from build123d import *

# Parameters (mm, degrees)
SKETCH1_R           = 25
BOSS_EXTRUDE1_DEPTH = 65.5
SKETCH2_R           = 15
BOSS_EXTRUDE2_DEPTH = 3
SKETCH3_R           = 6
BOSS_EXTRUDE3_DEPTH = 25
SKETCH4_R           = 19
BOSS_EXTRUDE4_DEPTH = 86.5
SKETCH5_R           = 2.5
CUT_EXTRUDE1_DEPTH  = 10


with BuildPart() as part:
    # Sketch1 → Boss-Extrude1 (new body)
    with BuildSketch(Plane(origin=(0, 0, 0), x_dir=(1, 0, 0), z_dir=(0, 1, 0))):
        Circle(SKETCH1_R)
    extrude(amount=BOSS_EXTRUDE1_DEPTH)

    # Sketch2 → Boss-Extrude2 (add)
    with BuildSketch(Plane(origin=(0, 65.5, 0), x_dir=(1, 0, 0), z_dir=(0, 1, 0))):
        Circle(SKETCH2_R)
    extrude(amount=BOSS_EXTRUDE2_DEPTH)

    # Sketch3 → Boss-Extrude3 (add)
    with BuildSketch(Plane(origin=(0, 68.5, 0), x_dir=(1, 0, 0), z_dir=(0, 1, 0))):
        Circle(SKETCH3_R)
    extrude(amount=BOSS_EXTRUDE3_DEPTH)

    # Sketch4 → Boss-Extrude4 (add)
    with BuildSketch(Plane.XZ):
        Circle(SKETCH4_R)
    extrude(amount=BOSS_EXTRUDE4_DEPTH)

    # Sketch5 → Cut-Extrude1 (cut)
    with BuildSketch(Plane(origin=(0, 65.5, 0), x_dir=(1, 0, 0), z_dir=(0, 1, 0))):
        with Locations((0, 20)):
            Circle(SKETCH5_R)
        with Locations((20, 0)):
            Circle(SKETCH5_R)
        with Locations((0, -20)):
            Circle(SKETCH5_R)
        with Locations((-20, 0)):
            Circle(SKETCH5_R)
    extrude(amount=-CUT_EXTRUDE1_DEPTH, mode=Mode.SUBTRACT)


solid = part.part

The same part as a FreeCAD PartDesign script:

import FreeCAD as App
import Part
import Sketcher
from FreeCAD import Vector
Q = App.Units.Quantity

doc = App.newDocument("Part")
body = doc.addObject("PartDesign::Body", "Body")

# Sketch on XZ plane
sketch1 = doc.addObject("Sketcher::SketchObject", "Sketch")
body.addObject(sketch1)
sketch1.AttachmentSupport = (doc.XZ_Plane, [""])
sketch1.MapMode = "FlatFace"
sketch1.addGeometry(Part.Circle(Vector(0, 0, 0), Vector(0, 0, 1), 25), False)
sketch1.addConstraint([
    Sketcher.Constraint("Coincident", 0, 3, -1, 1),
    Sketcher.Constraint("Diameter", 0, Q("50 mm")),
])
pad1 = doc.addObject("PartDesign::Pad", "Pad")
body.addObject(pad1)
pad1.Profile = sketch1
pad1.Length = 65.5
pad1.Reversed = True

# Sketch on XZ plane
sketch2 = doc.addObject("Sketcher::SketchObject", "Sketch001")
body.addObject(sketch2)
sketch2.AttachmentSupport = (doc.XZ_Plane, [""])
sketch2.MapMode = "FlatFace"
sketch2.AttachmentOffset = App.Placement(Vector(0, 0, -65.5), App.Rotation())
sketch2.addGeometry(Part.Circle(Vector(0, 0, 0), Vector(0, 0, 1), 15), False)
sketch2.addConstraint([
    Sketcher.Constraint("Coincident", 0, 3, -1, 1),
    Sketcher.Constraint("Diameter", 0, Q("30 mm")),
])
pad2 = doc.addObject("PartDesign::Pad", "Pad001")
body.addObject(pad2)
pad2.Profile = sketch2
pad2.Length = 3
pad2.Reversed = True

# Sketch on XZ plane
sketch3 = doc.addObject("Sketcher::SketchObject", "Sketch002")
body.addObject(sketch3)
sketch3.AttachmentSupport = (doc.XZ_Plane, [""])
sketch3.MapMode = "FlatFace"
sketch3.AttachmentOffset = App.Placement(Vector(0, 0, -68.5), App.Rotation())
sketch3.addGeometry(Part.Circle(Vector(0, 0, 0), Vector(0, 0, 1), 6), False)
sketch3.addConstraint([
    Sketcher.Constraint("Coincident", 0, 3, -1, 1),
    Sketcher.Constraint("Diameter", 0, Q("12 mm")),
])
pad3 = doc.addObject("PartDesign::Pad", "Pad002")
body.addObject(pad3)
pad3.Profile = sketch3
pad3.Length = 25
pad3.Reversed = True

# Sketch on XZ plane
sketch4 = doc.addObject("Sketcher::SketchObject", "Sketch003")
body.addObject(sketch4)
sketch4.AttachmentSupport = (doc.XZ_Plane, [""])
sketch4.MapMode = "FlatFace"
sketch4.addGeometry(Part.Circle(Vector(0, 0, 0), Vector(0, 0, 1), 19), False)
sketch4.addConstraint([
    Sketcher.Constraint("Coincident", 0, 3, -1, 1),
    Sketcher.Constraint("Diameter", 0, Q("38 mm")),
])
pad4 = doc.addObject("PartDesign::Pad", "Pad003")
body.addObject(pad4)
pad4.Profile = sketch4
pad4.Length = 86.5

# Sketch on XZ plane
sketch5 = doc.addObject("Sketcher::SketchObject", "Sketch004")
body.addObject(sketch5)
sketch5.AttachmentSupport = (doc.XZ_Plane, [""])
sketch5.MapMode = "FlatFace"
sketch5.AttachmentOffset = App.Placement(Vector(0, 0, -65.5), App.Rotation())
sketch5.addGeometry([
    Part.Circle(Vector(0, -20, 0), Vector(0, 0, 1), 2.5),
    Part.Circle(Vector(20, 0, 0), Vector(0, 0, 1), 2.5),
    Part.Circle(Vector(0, 20, 0), Vector(0, 0, 1), 2.5),
    Part.Circle(Vector(-20, 0, 0), Vector(0, 0, 1), 2.5),
], False)
sketch5.addConstraint([
    Sketcher.Constraint("Equal", 0, 1),
    Sketcher.Constraint("Equal", 1, 2),
    Sketcher.Constraint("Equal", 2, 3),
    Sketcher.Constraint("Symmetric", 0, 3, 2, 3, -1, 1),
    Sketcher.Constraint("Symmetric", 1, 3, 3, 3, -1, 1),
    Sketcher.Constraint("PointOnObject", 0, 3, -2),
    Sketcher.Constraint("PointOnObject", 1, 3, -1),
    Sketcher.Constraint("Diameter", 0, Q("5 mm")),
    Sketcher.Constraint("DistanceY", 0, 3, -1, 1, Q("20 mm")),
    Sketcher.Constraint("DistanceX", -1, 1, 1, 3, Q("20 mm")),
])
pocket1 = doc.addObject("PartDesign::Pocket", "Pocket")
body.addObject(pocket1)
pocket1.Profile = sketch5
pocket1.Length = 10
pocket1.Reversed = True

doc.recompute()
